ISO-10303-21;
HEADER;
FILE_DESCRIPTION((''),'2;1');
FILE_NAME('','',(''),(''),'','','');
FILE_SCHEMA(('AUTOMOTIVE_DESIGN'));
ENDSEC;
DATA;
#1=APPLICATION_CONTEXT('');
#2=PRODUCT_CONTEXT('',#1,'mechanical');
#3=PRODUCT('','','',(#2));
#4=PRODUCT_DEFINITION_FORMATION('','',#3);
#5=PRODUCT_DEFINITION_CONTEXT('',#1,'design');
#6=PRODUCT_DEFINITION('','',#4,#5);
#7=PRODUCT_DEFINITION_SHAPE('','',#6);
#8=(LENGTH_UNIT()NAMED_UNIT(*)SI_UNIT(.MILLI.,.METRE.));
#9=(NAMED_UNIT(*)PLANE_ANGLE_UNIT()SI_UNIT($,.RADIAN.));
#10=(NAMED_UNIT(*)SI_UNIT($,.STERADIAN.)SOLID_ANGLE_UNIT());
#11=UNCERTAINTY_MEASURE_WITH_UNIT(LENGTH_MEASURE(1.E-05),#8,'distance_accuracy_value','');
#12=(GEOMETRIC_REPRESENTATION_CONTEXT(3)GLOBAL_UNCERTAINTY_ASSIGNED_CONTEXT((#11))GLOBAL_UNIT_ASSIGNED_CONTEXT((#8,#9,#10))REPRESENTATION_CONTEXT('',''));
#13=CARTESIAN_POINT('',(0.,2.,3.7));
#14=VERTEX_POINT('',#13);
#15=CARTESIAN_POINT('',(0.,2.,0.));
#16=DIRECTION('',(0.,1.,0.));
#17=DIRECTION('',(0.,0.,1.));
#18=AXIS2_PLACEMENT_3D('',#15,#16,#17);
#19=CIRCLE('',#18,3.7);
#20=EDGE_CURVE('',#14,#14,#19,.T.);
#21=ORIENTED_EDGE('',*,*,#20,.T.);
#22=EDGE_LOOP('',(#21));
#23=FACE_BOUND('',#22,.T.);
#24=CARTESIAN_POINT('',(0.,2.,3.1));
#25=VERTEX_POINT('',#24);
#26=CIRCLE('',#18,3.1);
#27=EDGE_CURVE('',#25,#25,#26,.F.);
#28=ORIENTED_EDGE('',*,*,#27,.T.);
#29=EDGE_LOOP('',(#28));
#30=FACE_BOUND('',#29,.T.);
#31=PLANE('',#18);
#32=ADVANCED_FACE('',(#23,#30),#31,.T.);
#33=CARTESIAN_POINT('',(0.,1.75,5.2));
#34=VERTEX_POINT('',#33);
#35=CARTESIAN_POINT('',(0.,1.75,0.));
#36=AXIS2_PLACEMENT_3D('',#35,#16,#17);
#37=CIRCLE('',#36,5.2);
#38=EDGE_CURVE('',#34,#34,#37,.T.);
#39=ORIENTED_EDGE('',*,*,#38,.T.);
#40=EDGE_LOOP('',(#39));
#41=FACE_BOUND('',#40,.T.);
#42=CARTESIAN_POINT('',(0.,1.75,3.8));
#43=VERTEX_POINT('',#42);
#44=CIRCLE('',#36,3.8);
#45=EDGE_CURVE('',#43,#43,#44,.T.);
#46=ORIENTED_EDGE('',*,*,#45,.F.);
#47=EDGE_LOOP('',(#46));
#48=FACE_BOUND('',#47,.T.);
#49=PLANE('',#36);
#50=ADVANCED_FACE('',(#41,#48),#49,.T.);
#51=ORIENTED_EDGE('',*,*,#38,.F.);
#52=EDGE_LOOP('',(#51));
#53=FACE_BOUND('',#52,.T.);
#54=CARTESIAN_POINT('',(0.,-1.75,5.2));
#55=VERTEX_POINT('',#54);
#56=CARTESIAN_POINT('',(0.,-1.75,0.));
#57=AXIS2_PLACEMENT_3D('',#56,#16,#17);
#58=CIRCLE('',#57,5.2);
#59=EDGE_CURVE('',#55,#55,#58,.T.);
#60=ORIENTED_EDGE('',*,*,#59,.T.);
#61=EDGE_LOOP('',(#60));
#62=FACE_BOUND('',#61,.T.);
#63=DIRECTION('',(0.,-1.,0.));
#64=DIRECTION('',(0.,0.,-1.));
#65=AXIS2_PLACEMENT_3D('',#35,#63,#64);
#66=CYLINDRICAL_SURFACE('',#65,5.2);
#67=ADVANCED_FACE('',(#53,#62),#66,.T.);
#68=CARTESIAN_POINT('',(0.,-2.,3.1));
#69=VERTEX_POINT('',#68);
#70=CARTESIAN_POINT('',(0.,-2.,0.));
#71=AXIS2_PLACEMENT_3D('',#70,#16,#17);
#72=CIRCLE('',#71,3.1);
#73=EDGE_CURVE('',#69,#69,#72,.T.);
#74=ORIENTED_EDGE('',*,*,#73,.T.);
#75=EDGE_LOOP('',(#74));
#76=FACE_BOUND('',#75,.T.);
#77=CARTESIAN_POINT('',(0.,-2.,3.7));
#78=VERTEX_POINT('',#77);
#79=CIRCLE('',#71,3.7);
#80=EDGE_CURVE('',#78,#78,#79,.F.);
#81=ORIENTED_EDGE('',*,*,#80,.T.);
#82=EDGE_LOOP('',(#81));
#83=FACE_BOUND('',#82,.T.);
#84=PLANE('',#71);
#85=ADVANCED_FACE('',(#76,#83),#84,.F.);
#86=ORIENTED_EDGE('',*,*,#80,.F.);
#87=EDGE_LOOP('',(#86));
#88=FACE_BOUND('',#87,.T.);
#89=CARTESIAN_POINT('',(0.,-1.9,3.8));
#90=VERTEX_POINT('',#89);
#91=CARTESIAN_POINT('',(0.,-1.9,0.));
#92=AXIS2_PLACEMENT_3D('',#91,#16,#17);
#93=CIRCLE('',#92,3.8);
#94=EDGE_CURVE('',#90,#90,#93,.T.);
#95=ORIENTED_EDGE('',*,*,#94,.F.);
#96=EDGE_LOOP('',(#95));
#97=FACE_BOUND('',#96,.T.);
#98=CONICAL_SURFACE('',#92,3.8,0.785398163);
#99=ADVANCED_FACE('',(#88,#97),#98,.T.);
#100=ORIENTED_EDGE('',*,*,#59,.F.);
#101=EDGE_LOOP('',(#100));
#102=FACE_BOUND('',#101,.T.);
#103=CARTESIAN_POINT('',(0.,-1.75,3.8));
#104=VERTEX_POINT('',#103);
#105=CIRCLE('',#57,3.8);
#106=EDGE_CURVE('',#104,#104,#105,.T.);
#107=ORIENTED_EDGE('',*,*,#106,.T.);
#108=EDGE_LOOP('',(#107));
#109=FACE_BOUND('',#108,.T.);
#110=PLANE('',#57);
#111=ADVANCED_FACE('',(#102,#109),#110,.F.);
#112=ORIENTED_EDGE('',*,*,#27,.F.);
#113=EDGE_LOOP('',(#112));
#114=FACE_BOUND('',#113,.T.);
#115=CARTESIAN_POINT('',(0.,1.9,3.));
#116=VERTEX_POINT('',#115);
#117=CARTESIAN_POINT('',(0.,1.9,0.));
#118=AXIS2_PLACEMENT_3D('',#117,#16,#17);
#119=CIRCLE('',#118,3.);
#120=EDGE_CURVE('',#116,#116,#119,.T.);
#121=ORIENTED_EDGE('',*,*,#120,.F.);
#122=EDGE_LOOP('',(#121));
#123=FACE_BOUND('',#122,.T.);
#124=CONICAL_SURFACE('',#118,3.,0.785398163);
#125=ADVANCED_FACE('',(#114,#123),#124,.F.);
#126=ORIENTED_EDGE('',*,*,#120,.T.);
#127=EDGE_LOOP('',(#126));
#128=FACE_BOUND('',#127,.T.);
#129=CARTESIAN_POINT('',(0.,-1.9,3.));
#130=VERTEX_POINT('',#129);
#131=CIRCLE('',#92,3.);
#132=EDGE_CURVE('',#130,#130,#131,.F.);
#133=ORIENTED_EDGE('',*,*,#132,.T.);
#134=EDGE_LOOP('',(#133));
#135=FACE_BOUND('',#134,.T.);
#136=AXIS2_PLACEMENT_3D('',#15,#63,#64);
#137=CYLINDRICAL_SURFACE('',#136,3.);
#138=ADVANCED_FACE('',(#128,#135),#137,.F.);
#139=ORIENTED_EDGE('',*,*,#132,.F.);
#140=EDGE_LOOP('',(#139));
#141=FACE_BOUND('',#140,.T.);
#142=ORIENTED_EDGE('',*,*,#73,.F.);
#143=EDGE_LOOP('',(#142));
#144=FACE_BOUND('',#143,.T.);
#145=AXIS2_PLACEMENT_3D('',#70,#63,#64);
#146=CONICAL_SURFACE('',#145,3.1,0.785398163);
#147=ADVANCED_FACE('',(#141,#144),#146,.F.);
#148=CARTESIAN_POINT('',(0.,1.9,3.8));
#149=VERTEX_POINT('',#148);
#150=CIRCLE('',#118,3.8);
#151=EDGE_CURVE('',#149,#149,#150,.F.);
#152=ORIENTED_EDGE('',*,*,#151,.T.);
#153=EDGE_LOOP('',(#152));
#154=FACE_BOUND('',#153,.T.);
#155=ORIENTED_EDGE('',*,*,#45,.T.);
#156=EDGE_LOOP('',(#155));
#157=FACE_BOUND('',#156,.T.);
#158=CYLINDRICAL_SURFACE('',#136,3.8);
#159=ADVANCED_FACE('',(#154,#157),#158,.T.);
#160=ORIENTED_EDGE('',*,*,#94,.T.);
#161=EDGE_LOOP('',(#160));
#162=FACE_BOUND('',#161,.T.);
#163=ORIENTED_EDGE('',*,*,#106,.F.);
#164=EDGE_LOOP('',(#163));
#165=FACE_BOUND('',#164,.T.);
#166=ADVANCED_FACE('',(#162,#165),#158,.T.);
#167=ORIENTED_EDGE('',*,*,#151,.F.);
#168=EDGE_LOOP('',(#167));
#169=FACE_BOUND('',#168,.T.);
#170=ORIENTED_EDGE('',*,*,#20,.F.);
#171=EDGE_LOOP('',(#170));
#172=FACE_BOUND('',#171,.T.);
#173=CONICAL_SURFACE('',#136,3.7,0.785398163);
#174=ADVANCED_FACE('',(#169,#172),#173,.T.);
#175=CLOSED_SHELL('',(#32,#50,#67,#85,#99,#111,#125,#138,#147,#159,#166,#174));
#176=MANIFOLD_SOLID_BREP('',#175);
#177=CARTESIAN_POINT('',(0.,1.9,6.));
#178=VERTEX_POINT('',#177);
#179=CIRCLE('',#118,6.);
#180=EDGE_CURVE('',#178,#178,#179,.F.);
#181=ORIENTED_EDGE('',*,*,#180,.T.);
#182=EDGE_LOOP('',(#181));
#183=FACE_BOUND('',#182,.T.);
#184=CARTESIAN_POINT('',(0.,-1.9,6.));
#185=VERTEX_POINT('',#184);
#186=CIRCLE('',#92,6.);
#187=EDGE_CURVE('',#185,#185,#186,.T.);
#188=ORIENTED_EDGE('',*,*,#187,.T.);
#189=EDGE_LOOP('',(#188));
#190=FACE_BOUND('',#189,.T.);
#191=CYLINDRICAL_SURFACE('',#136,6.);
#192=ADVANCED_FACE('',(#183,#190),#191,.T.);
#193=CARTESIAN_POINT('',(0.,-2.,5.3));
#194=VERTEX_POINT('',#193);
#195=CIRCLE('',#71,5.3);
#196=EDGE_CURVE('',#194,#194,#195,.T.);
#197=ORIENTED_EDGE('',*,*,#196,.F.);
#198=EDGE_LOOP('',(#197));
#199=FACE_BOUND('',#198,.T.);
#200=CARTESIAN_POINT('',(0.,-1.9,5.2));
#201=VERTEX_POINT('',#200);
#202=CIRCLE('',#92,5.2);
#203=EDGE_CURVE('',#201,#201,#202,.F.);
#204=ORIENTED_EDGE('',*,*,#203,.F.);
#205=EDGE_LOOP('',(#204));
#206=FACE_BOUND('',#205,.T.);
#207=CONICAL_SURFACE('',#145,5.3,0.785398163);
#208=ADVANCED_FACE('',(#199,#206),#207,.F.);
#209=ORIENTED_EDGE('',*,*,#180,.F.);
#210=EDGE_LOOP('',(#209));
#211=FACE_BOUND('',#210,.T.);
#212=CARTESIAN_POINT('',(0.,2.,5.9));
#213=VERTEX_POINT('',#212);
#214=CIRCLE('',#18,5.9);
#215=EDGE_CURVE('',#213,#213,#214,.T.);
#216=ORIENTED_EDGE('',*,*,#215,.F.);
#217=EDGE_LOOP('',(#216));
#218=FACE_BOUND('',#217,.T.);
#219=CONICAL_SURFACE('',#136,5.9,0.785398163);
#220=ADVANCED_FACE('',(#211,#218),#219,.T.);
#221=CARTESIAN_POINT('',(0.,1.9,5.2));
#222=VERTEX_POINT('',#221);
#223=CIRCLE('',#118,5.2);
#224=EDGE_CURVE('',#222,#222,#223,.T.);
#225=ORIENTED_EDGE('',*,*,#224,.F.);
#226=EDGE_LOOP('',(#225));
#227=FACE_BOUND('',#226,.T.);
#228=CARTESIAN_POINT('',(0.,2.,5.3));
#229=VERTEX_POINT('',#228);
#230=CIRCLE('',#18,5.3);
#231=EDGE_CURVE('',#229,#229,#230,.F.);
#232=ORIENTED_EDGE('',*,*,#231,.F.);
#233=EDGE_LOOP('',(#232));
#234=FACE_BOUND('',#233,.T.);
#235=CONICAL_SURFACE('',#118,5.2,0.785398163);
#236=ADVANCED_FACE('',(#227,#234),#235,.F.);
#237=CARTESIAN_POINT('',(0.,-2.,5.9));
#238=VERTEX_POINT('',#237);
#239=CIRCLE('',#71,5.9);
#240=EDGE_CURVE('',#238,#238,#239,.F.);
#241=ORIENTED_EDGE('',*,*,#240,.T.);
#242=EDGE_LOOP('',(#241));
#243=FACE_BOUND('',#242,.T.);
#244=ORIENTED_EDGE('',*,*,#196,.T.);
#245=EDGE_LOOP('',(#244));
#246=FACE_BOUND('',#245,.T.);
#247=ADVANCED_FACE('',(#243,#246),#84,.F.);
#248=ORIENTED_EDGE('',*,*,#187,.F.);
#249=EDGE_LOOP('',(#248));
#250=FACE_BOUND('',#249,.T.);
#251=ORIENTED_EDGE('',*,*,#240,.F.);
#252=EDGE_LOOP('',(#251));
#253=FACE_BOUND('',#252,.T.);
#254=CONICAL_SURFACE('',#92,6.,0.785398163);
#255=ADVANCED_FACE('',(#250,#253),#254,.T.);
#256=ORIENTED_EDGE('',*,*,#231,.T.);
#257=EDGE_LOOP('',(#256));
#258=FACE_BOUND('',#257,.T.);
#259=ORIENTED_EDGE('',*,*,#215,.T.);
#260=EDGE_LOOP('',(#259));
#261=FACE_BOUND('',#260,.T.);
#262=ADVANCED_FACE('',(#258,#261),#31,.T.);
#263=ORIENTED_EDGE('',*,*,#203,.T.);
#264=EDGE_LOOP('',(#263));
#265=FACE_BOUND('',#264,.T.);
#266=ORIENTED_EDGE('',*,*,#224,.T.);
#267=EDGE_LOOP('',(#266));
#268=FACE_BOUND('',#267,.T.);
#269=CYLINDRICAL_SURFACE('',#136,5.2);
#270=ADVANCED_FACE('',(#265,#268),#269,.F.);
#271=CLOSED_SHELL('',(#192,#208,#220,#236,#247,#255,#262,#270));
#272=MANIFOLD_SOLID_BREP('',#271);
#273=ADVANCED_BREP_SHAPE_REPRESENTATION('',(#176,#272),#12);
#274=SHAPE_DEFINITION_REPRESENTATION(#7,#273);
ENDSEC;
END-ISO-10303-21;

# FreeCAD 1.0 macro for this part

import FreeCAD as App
import Part
import Sketcher


def edges_at(feature, points):
    """Names of the edges that pass closest to the given points."""
    edges = feature.Shape.Edges
    near = lambda p: min(range(len(edges)), key=lambda i: edges[i].distToShape(Part.Vertex(*p))[0])
    return sorted({f"Edge{near(p) + 1}" for p in points})

doc = App.newDocument("Part")
body = doc.addObject("PartDesign::Body", "Body")

sketch1 = body.newObject("Sketcher::SketchObject", "Sketch")
sketch1.AttachmentSupport = (doc.getObject("XZ_Plane"), [""])
sketch1.MapMode = "FlatFace"
sketch1.addGeometry([
    Part.Circle(App.Vector(0, 0, 0), App.Vector(0, 0, 1), 6),
    Part.Circle(App.Vector(0, 0, 0), App.Vector(0, 0, 1), 5.2),
], False)
sketch1.addConstraint([
    Sketcher.Constraint("Coincident", 0, 3, -1, 1),
    Sketcher.Constraint("Coincident", 1, 3, -1, 1),
    Sketcher.Constraint("Diameter", 0, 12.0),
    Sketcher.Constraint("Diameter", 1, 10.4),
])
pad1 = body.newObject("PartDesign::Pad", "Pad")
pad1.Profile = sketch1
pad1.Length = 4
pad1.Midplane = True
doc.recompute()

chamfer = body.newObject("PartDesign::Chamfer", "Chamfer")
chamfer.Base = (pad1, edges_at(pad1, [
    (0, -2, -6),
    (0, -2, -5.2),
    (0, 2, -5.2),
    (0, 2, -6),
]))
chamfer.Size = 0.1
body2 = doc.addObject("PartDesign::Body", "Body001")

sketch2 = body2.newObject("Sketcher::SketchObject", "Sketch001")
sketch2.AttachmentSupport = (doc.getObject("XZ_Plane001"), [""])
sketch2.MapMode = "FlatFace"
sketch2.addGeometry([
    Part.Circle(App.Vector(0, 0, 0), App.Vector(0, 0, 1), 3.8),
    Part.Circle(App.Vector(0, 0, 0), App.Vector(0, 0, 1), 3),
], False)
sketch2.addConstraint([
    Sketcher.Constraint("Coincident", 0, 3, -1, 1),
    Sketcher.Constraint("Coincident", 1, 3, -1, 1),
    Sketcher.Constraint("Diameter", 1, 6.0),
    Sketcher.Constraint("Diameter", 0, 7.6),
])
pad2 = body2.newObject("PartDesign::Pad", "Pad001")
pad2.Profile = sketch2
pad2.Length = 4
pad2.Midplane = True

sketch3 = body2.newObject("Sketcher::SketchObject", "Sketch002")
sketch3.AttachmentSupport = (doc.getObject("XZ_Plane001"), [""])
sketch3.MapMode = "FlatFace"
sketch3.addGeometry([
    Part.Circle(App.Vector(0, 0, 0), App.Vector(0, 0, 1), 5.2),
    Part.Circle(App.Vector(0, 0, 0), App.Vector(0, 0, 1), 3.8),
], False)
sketch3.addConstraint([
    Sketcher.Constraint("Coincident", 0, 3, -1, 1),
    Sketcher.Constraint("Coincident", 1, 3, -1, 1),
    Sketcher.Constraint("Diameter", 0, 10.4),
    Sketcher.Constraint("Diameter", 1, 7.6),
])
pad3 = body2.newObject("PartDesign::Pad", "Pad002")
pad3.Profile = sketch3
pad3.Length = 3.5
pad3.Midplane = True
doc.recompute()

chamfer2 = body2.newObject("PartDesign::Chamfer", "Chamfer001")
chamfer2.Base = (pad3, edges_at(pad3, [
    (0, -2, -3.8),
    (0, -2, -3),
    (0, 2, -3),
    (0, 2, -3.8),
]))
chamfer2.Size = 0.1

doc.recompute()
